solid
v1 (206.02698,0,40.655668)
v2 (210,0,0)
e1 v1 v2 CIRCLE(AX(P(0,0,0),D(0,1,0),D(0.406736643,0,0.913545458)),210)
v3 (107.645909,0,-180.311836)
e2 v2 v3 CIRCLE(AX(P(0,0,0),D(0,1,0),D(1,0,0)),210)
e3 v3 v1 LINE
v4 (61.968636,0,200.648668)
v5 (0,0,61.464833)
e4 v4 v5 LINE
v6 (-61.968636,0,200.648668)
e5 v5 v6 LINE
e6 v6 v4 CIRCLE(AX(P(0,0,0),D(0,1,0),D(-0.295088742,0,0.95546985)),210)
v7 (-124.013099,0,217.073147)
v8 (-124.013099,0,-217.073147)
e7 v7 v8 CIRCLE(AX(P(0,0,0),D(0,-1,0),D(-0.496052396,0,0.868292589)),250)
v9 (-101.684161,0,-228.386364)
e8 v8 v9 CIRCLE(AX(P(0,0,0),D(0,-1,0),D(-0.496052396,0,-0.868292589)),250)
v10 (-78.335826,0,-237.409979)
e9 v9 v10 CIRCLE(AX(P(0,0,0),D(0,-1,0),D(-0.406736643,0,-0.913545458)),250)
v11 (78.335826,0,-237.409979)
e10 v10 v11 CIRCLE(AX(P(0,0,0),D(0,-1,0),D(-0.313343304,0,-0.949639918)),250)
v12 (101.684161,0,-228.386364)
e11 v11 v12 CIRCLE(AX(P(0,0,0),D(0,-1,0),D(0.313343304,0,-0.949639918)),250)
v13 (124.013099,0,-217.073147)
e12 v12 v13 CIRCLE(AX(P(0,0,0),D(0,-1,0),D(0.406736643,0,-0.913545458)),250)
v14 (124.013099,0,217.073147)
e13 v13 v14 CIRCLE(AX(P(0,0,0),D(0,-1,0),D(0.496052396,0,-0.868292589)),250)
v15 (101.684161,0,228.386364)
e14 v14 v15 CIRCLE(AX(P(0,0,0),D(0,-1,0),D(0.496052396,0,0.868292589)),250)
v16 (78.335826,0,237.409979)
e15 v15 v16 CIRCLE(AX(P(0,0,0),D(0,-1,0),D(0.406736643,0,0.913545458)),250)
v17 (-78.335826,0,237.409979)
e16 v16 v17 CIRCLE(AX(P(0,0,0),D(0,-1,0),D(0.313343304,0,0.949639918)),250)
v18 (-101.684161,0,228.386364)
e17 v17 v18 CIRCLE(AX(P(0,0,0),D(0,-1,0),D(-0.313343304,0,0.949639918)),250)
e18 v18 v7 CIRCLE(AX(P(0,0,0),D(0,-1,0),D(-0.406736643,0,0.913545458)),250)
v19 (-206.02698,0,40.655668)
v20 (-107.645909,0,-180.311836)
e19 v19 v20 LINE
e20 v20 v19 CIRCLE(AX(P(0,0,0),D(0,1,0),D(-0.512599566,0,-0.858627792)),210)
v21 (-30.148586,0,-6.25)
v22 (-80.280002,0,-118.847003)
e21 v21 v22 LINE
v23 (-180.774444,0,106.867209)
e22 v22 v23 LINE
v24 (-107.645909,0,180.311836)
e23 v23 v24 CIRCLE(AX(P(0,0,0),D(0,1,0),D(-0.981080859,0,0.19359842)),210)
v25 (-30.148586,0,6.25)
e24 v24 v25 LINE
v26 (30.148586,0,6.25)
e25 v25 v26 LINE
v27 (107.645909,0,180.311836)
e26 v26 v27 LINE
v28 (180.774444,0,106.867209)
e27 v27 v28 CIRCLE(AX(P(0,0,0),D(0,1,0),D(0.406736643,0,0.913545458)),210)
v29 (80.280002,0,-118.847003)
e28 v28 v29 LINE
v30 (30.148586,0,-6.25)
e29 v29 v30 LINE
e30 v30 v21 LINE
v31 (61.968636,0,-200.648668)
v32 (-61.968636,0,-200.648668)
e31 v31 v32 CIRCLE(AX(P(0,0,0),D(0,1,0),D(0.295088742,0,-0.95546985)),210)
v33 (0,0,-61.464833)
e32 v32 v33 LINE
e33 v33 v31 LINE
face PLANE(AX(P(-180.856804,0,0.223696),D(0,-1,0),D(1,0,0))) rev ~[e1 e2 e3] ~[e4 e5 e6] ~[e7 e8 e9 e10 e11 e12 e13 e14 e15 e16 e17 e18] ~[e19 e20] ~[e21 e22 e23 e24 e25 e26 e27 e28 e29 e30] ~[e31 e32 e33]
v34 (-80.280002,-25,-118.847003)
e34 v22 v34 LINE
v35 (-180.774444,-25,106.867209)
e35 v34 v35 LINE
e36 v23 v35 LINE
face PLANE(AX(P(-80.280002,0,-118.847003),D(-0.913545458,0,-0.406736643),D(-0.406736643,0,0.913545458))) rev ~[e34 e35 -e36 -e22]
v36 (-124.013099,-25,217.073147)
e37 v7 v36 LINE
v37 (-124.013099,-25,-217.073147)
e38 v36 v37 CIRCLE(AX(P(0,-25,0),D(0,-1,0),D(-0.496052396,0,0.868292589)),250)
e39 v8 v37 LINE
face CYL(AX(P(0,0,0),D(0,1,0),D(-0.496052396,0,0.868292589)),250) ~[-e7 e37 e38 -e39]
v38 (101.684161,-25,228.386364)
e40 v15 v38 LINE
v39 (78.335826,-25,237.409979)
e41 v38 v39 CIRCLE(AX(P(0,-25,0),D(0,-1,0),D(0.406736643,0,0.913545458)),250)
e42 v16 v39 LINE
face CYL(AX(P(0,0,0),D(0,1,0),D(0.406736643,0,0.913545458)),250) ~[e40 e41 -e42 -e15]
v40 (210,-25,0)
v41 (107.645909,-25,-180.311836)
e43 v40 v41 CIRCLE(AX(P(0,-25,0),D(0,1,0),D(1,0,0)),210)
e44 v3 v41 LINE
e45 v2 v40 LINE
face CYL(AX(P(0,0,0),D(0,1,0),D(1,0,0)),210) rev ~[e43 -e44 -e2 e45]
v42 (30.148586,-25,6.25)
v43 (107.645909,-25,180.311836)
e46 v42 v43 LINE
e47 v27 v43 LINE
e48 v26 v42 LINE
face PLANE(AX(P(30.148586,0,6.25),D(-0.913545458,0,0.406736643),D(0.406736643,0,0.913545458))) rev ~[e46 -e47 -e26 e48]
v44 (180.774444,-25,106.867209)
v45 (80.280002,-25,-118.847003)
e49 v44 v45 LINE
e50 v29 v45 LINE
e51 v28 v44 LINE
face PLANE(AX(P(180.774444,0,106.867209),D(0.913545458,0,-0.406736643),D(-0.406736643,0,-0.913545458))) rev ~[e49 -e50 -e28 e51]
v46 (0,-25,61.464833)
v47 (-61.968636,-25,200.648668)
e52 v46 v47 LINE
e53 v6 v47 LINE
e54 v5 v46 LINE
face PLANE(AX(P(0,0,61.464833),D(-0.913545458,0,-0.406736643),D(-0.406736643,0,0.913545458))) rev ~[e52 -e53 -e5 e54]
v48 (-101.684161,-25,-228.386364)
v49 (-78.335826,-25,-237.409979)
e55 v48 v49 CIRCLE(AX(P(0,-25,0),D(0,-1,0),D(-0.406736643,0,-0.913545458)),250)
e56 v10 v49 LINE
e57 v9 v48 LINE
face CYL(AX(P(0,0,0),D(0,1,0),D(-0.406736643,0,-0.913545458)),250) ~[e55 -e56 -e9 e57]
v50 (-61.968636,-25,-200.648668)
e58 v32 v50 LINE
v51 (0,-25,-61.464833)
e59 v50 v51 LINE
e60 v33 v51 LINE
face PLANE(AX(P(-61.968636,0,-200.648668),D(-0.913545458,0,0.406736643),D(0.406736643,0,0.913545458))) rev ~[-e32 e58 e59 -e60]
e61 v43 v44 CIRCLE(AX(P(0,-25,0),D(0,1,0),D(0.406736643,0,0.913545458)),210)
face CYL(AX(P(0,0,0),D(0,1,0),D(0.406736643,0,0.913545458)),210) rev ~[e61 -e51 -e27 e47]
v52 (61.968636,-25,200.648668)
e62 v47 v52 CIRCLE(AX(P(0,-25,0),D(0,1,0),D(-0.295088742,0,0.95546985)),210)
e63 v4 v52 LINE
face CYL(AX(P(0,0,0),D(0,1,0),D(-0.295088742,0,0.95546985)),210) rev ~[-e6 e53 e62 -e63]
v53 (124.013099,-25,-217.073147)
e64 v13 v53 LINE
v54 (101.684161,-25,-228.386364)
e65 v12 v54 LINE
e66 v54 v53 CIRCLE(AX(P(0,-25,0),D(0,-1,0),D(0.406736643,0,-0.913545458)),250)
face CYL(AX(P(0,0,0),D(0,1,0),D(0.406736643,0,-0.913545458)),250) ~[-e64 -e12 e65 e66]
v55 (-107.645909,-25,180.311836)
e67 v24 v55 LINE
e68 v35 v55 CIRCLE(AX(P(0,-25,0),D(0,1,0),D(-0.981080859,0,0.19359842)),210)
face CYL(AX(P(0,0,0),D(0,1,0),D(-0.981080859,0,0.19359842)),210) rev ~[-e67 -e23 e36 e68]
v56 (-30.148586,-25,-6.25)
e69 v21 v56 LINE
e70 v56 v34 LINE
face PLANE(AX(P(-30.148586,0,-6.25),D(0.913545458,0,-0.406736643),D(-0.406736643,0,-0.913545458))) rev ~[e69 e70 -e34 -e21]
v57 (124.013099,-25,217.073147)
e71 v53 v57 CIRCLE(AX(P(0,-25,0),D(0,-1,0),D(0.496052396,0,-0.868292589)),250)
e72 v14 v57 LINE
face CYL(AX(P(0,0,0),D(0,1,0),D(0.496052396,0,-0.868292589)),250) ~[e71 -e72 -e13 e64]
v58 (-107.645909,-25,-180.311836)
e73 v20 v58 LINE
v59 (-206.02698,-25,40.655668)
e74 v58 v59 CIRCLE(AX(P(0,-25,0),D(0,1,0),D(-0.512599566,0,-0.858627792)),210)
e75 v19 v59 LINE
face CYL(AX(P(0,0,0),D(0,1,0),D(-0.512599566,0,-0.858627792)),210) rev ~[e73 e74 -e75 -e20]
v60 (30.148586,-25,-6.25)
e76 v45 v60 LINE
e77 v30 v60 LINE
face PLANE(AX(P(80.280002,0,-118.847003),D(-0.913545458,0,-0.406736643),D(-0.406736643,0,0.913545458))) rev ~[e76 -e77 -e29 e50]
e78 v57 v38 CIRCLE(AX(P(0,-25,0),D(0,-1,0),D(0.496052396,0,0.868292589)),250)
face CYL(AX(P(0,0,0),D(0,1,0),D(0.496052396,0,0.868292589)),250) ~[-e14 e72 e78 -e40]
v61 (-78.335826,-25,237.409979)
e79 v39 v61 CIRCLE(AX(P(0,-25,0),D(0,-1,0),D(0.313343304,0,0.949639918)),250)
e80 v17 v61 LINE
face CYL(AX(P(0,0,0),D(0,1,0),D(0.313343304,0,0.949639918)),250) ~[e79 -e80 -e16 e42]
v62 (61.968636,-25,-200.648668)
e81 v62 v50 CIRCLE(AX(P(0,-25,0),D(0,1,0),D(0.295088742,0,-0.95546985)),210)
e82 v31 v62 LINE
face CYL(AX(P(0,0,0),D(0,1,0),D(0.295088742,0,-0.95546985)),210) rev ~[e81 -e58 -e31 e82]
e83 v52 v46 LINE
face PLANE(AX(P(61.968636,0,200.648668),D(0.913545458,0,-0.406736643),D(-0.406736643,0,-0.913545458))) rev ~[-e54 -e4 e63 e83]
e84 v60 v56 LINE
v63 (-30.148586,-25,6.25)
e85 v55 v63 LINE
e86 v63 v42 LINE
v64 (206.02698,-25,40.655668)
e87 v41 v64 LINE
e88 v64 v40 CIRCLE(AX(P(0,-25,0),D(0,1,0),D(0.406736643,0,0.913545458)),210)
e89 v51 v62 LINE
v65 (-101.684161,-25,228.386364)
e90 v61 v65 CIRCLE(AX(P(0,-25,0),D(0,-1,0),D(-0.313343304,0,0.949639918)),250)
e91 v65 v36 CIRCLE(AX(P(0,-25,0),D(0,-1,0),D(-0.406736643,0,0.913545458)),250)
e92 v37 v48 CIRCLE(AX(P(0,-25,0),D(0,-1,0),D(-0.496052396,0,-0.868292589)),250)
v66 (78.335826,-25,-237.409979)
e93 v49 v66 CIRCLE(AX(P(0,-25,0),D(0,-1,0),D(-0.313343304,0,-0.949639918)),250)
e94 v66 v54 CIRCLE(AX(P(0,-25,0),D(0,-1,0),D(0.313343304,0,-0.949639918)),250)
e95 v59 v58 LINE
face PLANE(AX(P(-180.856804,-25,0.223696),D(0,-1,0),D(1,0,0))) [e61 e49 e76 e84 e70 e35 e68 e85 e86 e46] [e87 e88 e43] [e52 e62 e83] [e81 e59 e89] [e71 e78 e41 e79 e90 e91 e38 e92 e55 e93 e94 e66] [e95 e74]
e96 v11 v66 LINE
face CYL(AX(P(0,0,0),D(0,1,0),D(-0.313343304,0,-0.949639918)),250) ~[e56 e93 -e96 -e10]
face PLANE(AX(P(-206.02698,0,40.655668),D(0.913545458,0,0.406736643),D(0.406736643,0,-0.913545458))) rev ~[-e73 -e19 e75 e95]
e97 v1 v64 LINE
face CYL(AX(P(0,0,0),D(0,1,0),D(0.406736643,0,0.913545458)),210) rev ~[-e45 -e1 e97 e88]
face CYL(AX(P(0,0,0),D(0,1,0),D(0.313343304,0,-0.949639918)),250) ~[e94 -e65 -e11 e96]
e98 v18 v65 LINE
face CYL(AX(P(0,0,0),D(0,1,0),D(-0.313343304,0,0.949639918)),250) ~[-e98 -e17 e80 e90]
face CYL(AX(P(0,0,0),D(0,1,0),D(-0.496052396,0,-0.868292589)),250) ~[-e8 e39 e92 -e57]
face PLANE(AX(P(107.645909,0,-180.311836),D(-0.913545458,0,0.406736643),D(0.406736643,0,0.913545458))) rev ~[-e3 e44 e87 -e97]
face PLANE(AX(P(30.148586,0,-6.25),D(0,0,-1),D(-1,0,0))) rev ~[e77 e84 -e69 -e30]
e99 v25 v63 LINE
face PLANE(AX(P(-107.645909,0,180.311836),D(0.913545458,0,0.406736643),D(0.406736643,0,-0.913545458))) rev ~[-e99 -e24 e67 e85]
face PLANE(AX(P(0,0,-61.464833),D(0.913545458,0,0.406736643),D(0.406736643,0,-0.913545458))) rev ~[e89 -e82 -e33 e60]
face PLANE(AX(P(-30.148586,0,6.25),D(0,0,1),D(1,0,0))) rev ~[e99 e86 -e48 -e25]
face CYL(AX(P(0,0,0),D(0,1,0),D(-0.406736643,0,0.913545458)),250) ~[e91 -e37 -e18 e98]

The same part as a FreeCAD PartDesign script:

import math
import FreeCAD as App
import Part
import Sketcher
from FreeCAD import Vector
Q = App.Units.Quantity

doc = App.newDocument("Part")
body = doc.addObject("PartDesign::Body", "Body")

# Sketch on XZ plane
sketch1 = doc.addObject("Sketcher::SketchObject", "Sketch")
body.addObject(sketch1)
sketch1.AttachmentSupport = (doc.XZ_Plane, [""])
sketch1.MapMode = "FlatFace"
sketch1.addGeometry(Part.ArcOfCircle(Part.Circle(Vector(0, 0, 0), Vector(0, 0, 1), 250), math.radians(-114), math.radians(-108.26)), False)
sketch1.addGeometry(Part.ArcOfCircle(Part.Circle(Vector(0, 0, 0), Vector(0, 0, 1), 250), math.radians(-108), math.radians(-72)), False)
sketch1.addGeometry(Part.ArcOfCircle(Part.Circle(Vector(0, 0, 0), Vector(0, 0, 1), 250), math.radians(-71.74), math.radians(-66)), False)
sketch1.addGeometry(Part.ArcOfCircle(Part.Circle(Vector(0, 0, 0), Vector(0, 0, 1), 250), math.radians(-66), math.radians(-60.26)), False)
sketch1.addGeometry(Part.ArcOfCircle(Part.Circle(Vector(0, 0, 0), Vector(0, 0, 1), 250), math.radians(-60), math.radians(60)), False)
sketch1.addGeometry(Part.ArcOfCircle(Part.Circle(Vector(0, 0, 0), Vector(0, 0, 1), 250), math.radians(60.26), math.radians(66)), False)
sketch1.addGeometry(Part.ArcOfCircle(Part.Circle(Vector(0, 0, 0), Vector(0, 0, 1), 250), math.radians(66), math.radians(71.74)), False)
sketch1.addGeometry(Part.ArcOfCircle(Part.Circle(Vector(0, 0, 0), Vector(0, 0, 1), 250), math.radians(72), math.radians(108)), False)
sketch1.addGeometry(Part.ArcOfCircle(Part.Circle(Vector(0, 0, 0), Vector(0, 0, 1), 250), math.radians(108.26), math.radians(114)), False)
sketch1.addGeometry(Part.ArcOfCircle(Part.Circle(Vector(0, 0, 0), Vector(0, 0, 1), 250), math.radians(114), math.radians(119.74)), False)
sketch1.addGeometry(Part.ArcOfCircle(Part.Circle(Vector(0, 0, 0), Vector(0, 0, 1), 250), math.radians(120), math.radians(240)), False)
sketch1.addGeometry(Part.ArcOfCircle(Part.Circle(Vector(0, 0, 0), Vector(0, 0, 1), 250), math.radians(-119.74), math.radians(-114)), False)
sketch1.addGeometry(Part.ArcOfCircle(Part.Circle(Vector(0, 0, 0), Vector(0, 0, 1), 210), math.radians(169), math.radians(239)), False)
sketch1.addGeometry(Part.LineSegment(Vector(-206, 41, 0), Vector(-108, -180, 0)), False)
sketch1.addGeometry(Part.ArcOfCircle(Part.Circle(Vector(0, 0, 0), Vector(0, 0, 1), 210), math.radians(121), math.radians(149)), False)
sketch1.addGeometry(Part.LineSegment(Vector(-108, 180, 0), Vector(-30, 6, 0)), False)
sketch1.addGeometry(Part.LineSegment(Vector(-30, 6, 0), Vector(30, 6, 0)), False)
sketch1.addGeometry(Part.LineSegment(Vector(30, 6, 0), Vector(108, 180, 0)), False)
sketch1.addGeometry(Part.ArcOfCircle(Part.Circle(Vector(0, 0, 0), Vector(0, 0, 1), 210), math.radians(31), math.radians(59)), False)
sketch1.addGeometry(Part.LineSegment(Vector(181, 107, 0), Vector(80, -119, 0)), False)
sketch1.addGeometry(Part.LineSegment(Vector(80, -119, 0), Vector(30, -6, 0)), False)
sketch1.addGeometry(Part.LineSegment(Vector(30, -6, 0), Vector(-30, -6, 0)), False)
sketch1.addGeometry(Part.LineSegment(Vector(-30, -6, 0), Vector(-80, -119, 0)), False)
sketch1.addGeometry(Part.LineSegment(Vector(-80, -119, 0), Vector(-181, 107, 0)), False)
sketch1.addGeometry(Part.ArcOfCircle(Part.Circle(Vector(0, 0, 0), Vector(0, 0, 1), 210), math.radians(73), math.radians(107)), False)
sketch1.addGeometry(Part.LineSegment(Vector(62, 201, 0), Vector(0, 61, 0)), False)
sketch1.addGeometry(Part.LineSegment(Vector(0, 61, 0), Vector(-62, 201, 0)), False)
sketch1.addGeometry(Part.ArcOfCircle(Part.Circle(Vector(0, 0, 0), Vector(0, 0, 1), 210), math.radians(-107), math.radians(-73)), False)
sketch1.addGeometry(Part.LineSegment(Vector(-62, -201, 0), Vector(0, -61, 0)), False)
sketch1.addGeometry(Part.LineSegment(Vector(0, -61, 0), Vector(62, -201, 0)), False)
sketch1.addGeometry(Part.ArcOfCircle(Part.Circle(Vector(0, 0, 0), Vector(0, 0, 1), 210), math.radians(-59), math.radians(0)), False)
sketch1.addGeometry(Part.LineSegment(Vector(108, -180, 0), Vector(206, 41, 0)), False)
sketch1.addGeometry(Part.ArcOfCircle(Part.Circle(Vector(0, 0, 0), Vector(0, 0, 1), 210), math.radians(0), math.radians(11.16)), False)
sketch1.addConstraint(Sketcher.Constraint("Tangent", 0, 2, 1, 1))
sketch1.addConstraint(Sketcher.Constraint("Tangent", 1, 2, 2, 1))
sketch1.addConstraint(Sketcher.Constraint("Tangent", 2, 2, 3, 1))
sketch1.addConstraint(Sketcher.Constraint("Tangent", 3, 2, 4, 1))
sketch1.addConstraint(Sketcher.Constraint("Tangent", 4, 2, 5, 1))
sketch1.addConstraint(Sketcher.Constraint("Tangent", 5, 2, 6, 1))
sketch1.addConstraint(Sketcher.Constraint("Tangent", 6, 2, 7, 1))
sketch1.addConstraint(Sketcher.Constraint("Tangent", 7, 2, 8, 1))
sketch1.addConstraint(Sketcher.Constraint("Tangent", 8, 2, 9, 1))
sketch1.addConstraint(Sketcher.Constraint("Tangent", 9, 2, 10, 1))
sketch1.addConstraint(Sketcher.Constraint("Tangent", 10, 2, 11, 1))
sketch1.addConstraint(Sketcher.Constraint("Coincident", 11, 2, 0, 1))
sketch1.addConstraint(Sketcher.Constraint("Coincident", 12, 1, 13, 1))
sketch1.addConstraint(Sketcher.Constraint("Coincident", 13, 2, 12, 2))
sketch1.addConstraint(Sketcher.Constraint("Coincident", 14, 1, 15, 1))
sketch1.addConstraint(Sketcher.Constraint("Coincident", 15, 2, 16, 1))
sketch1.addConstraint(Sketcher.Constraint("Coincident", 16, 2, 17, 1))
sketch1.addConstraint(Sketcher.Constraint("Coincident", 17, 2, 18, 2))
sketch1.addConstraint(Sketcher.Constraint("Coincident", 18, 1, 19, 1))
sketch1.addConstraint(Sketcher.Constraint("Coincident", 19, 2, 20, 1))
sketch1.addConstraint(Sketcher.Constraint("Coincident", 20, 2, 21, 1))
sketch1.addConstraint(Sketcher.Constraint("Coincident", 21, 2, 22, 1))
sketch1.addConstraint(Sketcher.Constraint("Coincident", 22, 2, 23, 1))
sketch1.addConstraint(Sketcher.Constraint("Coincident", 23, 2, 14, 2))
sketch1.addConstraint(Sketcher.Constraint("Coincident", 24, 1, 25, 1))
sketch1.addConstraint(Sketcher.Constraint("Coincident", 25, 2, 26, 1))
sketch1.addConstraint(Sketcher.Constraint("Coincident", 26, 2, 24, 2))
sketch1.addConstraint(Sketcher.Constraint("Coincident", 27, 1, 28, 1))
sketch1.addConstraint(Sketcher.Constraint("Coincident", 28, 2, 29, 1))
sketch1.addConstraint(Sketcher.Constraint("Coincident", 29, 2, 27, 2))
sketch1.addConstraint(Sketcher.Constraint("Coincident", 30, 1, 31, 1))
sketch1.addConstraint(Sketcher.Constraint("Coincident", 31, 2, 32, 2))
sketch1.addConstraint(Sketcher.Constraint("Tangent", 32, 1, 30, 2))
sketch1.addConstraint(Sketcher.Constraint("Horizontal", 16))
sketch1.addConstraint(Sketcher.Constraint("Horizontal", 21))
sketch1.addConstraint(Sketcher.Constraint("Coincident", 0, 3, -1, 1))
sketch1.addConstraint(Sketcher.Constraint("Coincident", 2, 3, -1, 1))
sketch1.addConstraint(Sketcher.Constraint("Coincident", 4, 3, -1, 1))
sketch1.addConstraint(Sketcher.Constraint("Coincident", 6, 3, -1, 1))
sketch1.addConstraint(Sketcher.Constraint("Coincident", 8, 3, -1, 1))
sketch1.addConstraint(Sketcher.Constraint("Coincident", 10, 3, -1, 1))
sketch1.addConstraint(Sketcher.Constraint("Coincident", 12, 3, -1, 1))
sketch1.addConstraint(Sketcher.Constraint("Coincident", 14, 3, -1, 1))
sketch1.addConstraint(Sketcher.Constraint("Coincident", 18, 3, -1, 1))
sketch1.addConstraint(Sketcher.Constraint("Coincident", 24, 3, -1, 1))
sketch1.addConstraint(Sketcher.Constraint("Coincident", 27, 3, -1, 1))
sketch1.addConstraint(Sketcher.Constraint("Coincident", 30, 3, -1, 1))
sketch1.addConstraint(Sketcher.Constraint("Equal", 12, 14))
sketch1.addConstraint(Sketcher.Constraint("Equal", 14, 18))
sketch1.addConstraint(Sketcher.Constraint("Equal", 18, 24))
sketch1.addConstraint(Sketcher.Constraint("Equal", 24, 27))
sketch1.addConstraint(Sketcher.Constraint("Equal", 27, 30))
sketch1.addConstraint(Sketcher.Constraint("Equal", 30, 32))
sketch1.addConstraint(Sketcher.Constraint("Symmetric", 15, 2, 20, 2, -1, 1))
sketch1.addConstraint(Sketcher.Constraint("Symmetric", 25, 2, 28, 2, -1, 1))
sketch1.addConstraint(Sketcher.Constraint("Symmetric", 19, 2, 22, 2, -2))
sketch1.addConstraint(Sketcher.Constraint("PointOnObject", 25, 2, -2))
sketch1.addConstraint(Sketcher.Constraint("PointOnObject", 32, 1, -1))
sketch1.addConstraint(Sketcher.Constraint("Parallel", 13, 15))
sketch1.addConstraint(Sketcher.Constraint("Parallel", 17, 19))
sketch1.addConstraint(Sketcher.Constraint("Parallel", 15, 20))
sketch1.addConstraint(Sketcher.Constraint("Parallel", 19, 22))
sketch1.addConstraint(Sketcher.Constraint("Parallel", 20, 23))
sketch1.addConstraint(Sketcher.Constraint("Parallel", 22, 25))
sketch1.addConstraint(Sketcher.Constraint("Parallel", 23, 26))
sketch1.addConstraint(Sketcher.Constraint("Parallel", 25, 28))
sketch1.addConstraint(Sketcher.Constraint("Parallel", 26, 29))
sketch1.addConstraint(Sketcher.Constraint("Parallel", 28, 31))
sketch1.addConstraint(Sketcher.Constraint("Horizontal", 0, 2, 1, 2))
sketch1.addConstraint(Sketcher.Constraint("Horizontal", 6, 2, 7, 2))
sketch1.addConstraint(Sketcher.Constraint("Horizontal", 5, 2, 8, 2))
sketch1.addConstraint(Sketcher.Constraint("Horizontal", 4, 2, 9, 2))
sketch1.addConstraint(Sketcher.Constraint("Horizontal", 3, 2, 10, 2))
sketch1.addConstraint(Sketcher.Constraint("Horizontal", 2, 2, 11, 2))
sketch1.addConstraint(Sketcher.Constraint("Horizontal", 14, 1, 17, 2))
sketch1.addConstraint(Sketcher.Constraint("Horizontal", 18, 1, 23, 2))
sketch1.addConstraint(Sketcher.Constraint("Horizontal", 13, 2, 30, 1))
sketch1.addConstraint(Sketcher.Constraint("Vertical", 3, 2, 4, 2))
sketch1.addConstraint(Sketcher.Constraint("Vertical", 2, 2, 5, 2))
sketch1.addConstraint(Sketcher.Constraint("Vertical", 1, 2, 6, 2))
sketch1.addConstraint(Sketcher.Constraint("Vertical", 13, 2, 14, 1))
sketch1.addConstraint(Sketcher.Constraint("Radius", 0, 250.0))
sketch1.addConstraint(Sketcher.Constraint("Radius", 12, 210.0))
sketch1.addConstraint(Sketcher.Constraint("Angle", 13, Q("-66 deg")))
sketch1.addConstraint(Sketcher.Constraint("DistanceY", 20, 2, 16, 2, 12.5))
sketch1.addConstraint(Sketcher.Constraint("DistanceX", -1, 1, 19, 2, 80.280002))
sketch1.addConstraint(Sketcher.Constraint("Distance", 15, 190.534401))
sketch1.addConstraint(Sketcher.Constraint("DistanceX", -1, 1, 3, 2, 124.013099))
sketch1.addConstraint(Sketcher.Constraint("DistanceY", 0, 2, -1, 1, 237.409979))
sketch1.addConstraint(Sketcher.Constraint("DistanceX", -1, 1, 2, 2, 101.684161))
sketch1.addConstraint(Sketcher.Constraint("DistanceY", -1, 1, 26, 2, 200.648668))
pad1 = doc.addObject("PartDesign::Pad", "Pad")
body.addObject(pad1)
pad1.Profile = sketch1
pad1.Length = 25

doc.recompute()
